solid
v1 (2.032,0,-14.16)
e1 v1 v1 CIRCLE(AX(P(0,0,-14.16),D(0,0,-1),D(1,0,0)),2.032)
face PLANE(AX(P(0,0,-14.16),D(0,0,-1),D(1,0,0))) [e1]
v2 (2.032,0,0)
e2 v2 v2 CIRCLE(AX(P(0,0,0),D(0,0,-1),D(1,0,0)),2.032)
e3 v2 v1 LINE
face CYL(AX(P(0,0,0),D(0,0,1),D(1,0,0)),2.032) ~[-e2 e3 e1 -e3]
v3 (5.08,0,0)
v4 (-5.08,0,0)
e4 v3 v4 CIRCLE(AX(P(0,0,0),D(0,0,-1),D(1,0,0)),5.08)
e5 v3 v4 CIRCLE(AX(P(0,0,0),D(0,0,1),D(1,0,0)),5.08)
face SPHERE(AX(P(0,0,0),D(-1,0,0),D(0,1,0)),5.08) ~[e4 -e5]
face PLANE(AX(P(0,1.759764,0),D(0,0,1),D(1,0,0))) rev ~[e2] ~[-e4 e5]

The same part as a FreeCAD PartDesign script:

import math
import FreeCAD as App
import Part
import Sketcher

V = App.Vector
Q = App.Units.Quantity

doc = App.newDocument("Part")
body = doc.addObject("PartDesign::Body", "Body")

# Sketch on XY plane
sketch1 = doc.addObject("Sketcher::SketchObject", "Sketch")
body.addObject(sketch1)
sketch1.AttachmentSupport = (doc.XY_Plane, [""])
sketch1.MapMode = "FlatFace"
sketch1.addGeometry([
    Part.LineSegment(V(-5, 0, 0), V(5, 0, 0)),
    Part.ArcOfCircle(Part.Circle(V(0, 0, 0), V(0, 0, 1), 5), math.radians(0), math.radians(180)),
], False)
sketch1.addConstraint([
    Sketcher.Constraint("Coincident", 0, 1, 1, 2),
    Sketcher.Constraint("Coincident", 1, 1, 0, 2),
    Sketcher.Constraint("Horizontal", 0),
    Sketcher.Constraint("Coincident", 1, 3, -1, 1),
    Sketcher.Constraint("PointOnObject", 0, 1, -1),
    Sketcher.Constraint("Radius", 1, Q("0.2 in")),
])
revolution = doc.addObject("PartDesign::Revolution", "Revolution")
body.addObject(revolution)
revolution.Profile = sketch1
revolution.ReferenceAxis = (sketch1, ["H_Axis"])
revolution.Angle = 180

# Sketch on XY plane
sketch2 = doc.addObject("Sketcher::SketchObject", "Sketch001")
body.addObject(sketch2)
sketch2.AttachmentSupport = (doc.XY_Plane, [""])
sketch2.MapMode = "FlatFace"
sketch2.addGeometry(Part.Circle(V(0, 0, 0), V(0, 0, 1), 2), False)
sketch2.addConstraint([
    Sketcher.Constraint("Coincident", 0, 3, -1, 1),
    Sketcher.Constraint("Diameter", 0, Q("0.16 in")),
])
pad1 = doc.addObject("PartDesign::Pad", "Pad")
body.addObject(pad1)
pad1.Profile = sketch2
pad1.Length = 14.16
pad1.Reversed = True

doc.recompute()
